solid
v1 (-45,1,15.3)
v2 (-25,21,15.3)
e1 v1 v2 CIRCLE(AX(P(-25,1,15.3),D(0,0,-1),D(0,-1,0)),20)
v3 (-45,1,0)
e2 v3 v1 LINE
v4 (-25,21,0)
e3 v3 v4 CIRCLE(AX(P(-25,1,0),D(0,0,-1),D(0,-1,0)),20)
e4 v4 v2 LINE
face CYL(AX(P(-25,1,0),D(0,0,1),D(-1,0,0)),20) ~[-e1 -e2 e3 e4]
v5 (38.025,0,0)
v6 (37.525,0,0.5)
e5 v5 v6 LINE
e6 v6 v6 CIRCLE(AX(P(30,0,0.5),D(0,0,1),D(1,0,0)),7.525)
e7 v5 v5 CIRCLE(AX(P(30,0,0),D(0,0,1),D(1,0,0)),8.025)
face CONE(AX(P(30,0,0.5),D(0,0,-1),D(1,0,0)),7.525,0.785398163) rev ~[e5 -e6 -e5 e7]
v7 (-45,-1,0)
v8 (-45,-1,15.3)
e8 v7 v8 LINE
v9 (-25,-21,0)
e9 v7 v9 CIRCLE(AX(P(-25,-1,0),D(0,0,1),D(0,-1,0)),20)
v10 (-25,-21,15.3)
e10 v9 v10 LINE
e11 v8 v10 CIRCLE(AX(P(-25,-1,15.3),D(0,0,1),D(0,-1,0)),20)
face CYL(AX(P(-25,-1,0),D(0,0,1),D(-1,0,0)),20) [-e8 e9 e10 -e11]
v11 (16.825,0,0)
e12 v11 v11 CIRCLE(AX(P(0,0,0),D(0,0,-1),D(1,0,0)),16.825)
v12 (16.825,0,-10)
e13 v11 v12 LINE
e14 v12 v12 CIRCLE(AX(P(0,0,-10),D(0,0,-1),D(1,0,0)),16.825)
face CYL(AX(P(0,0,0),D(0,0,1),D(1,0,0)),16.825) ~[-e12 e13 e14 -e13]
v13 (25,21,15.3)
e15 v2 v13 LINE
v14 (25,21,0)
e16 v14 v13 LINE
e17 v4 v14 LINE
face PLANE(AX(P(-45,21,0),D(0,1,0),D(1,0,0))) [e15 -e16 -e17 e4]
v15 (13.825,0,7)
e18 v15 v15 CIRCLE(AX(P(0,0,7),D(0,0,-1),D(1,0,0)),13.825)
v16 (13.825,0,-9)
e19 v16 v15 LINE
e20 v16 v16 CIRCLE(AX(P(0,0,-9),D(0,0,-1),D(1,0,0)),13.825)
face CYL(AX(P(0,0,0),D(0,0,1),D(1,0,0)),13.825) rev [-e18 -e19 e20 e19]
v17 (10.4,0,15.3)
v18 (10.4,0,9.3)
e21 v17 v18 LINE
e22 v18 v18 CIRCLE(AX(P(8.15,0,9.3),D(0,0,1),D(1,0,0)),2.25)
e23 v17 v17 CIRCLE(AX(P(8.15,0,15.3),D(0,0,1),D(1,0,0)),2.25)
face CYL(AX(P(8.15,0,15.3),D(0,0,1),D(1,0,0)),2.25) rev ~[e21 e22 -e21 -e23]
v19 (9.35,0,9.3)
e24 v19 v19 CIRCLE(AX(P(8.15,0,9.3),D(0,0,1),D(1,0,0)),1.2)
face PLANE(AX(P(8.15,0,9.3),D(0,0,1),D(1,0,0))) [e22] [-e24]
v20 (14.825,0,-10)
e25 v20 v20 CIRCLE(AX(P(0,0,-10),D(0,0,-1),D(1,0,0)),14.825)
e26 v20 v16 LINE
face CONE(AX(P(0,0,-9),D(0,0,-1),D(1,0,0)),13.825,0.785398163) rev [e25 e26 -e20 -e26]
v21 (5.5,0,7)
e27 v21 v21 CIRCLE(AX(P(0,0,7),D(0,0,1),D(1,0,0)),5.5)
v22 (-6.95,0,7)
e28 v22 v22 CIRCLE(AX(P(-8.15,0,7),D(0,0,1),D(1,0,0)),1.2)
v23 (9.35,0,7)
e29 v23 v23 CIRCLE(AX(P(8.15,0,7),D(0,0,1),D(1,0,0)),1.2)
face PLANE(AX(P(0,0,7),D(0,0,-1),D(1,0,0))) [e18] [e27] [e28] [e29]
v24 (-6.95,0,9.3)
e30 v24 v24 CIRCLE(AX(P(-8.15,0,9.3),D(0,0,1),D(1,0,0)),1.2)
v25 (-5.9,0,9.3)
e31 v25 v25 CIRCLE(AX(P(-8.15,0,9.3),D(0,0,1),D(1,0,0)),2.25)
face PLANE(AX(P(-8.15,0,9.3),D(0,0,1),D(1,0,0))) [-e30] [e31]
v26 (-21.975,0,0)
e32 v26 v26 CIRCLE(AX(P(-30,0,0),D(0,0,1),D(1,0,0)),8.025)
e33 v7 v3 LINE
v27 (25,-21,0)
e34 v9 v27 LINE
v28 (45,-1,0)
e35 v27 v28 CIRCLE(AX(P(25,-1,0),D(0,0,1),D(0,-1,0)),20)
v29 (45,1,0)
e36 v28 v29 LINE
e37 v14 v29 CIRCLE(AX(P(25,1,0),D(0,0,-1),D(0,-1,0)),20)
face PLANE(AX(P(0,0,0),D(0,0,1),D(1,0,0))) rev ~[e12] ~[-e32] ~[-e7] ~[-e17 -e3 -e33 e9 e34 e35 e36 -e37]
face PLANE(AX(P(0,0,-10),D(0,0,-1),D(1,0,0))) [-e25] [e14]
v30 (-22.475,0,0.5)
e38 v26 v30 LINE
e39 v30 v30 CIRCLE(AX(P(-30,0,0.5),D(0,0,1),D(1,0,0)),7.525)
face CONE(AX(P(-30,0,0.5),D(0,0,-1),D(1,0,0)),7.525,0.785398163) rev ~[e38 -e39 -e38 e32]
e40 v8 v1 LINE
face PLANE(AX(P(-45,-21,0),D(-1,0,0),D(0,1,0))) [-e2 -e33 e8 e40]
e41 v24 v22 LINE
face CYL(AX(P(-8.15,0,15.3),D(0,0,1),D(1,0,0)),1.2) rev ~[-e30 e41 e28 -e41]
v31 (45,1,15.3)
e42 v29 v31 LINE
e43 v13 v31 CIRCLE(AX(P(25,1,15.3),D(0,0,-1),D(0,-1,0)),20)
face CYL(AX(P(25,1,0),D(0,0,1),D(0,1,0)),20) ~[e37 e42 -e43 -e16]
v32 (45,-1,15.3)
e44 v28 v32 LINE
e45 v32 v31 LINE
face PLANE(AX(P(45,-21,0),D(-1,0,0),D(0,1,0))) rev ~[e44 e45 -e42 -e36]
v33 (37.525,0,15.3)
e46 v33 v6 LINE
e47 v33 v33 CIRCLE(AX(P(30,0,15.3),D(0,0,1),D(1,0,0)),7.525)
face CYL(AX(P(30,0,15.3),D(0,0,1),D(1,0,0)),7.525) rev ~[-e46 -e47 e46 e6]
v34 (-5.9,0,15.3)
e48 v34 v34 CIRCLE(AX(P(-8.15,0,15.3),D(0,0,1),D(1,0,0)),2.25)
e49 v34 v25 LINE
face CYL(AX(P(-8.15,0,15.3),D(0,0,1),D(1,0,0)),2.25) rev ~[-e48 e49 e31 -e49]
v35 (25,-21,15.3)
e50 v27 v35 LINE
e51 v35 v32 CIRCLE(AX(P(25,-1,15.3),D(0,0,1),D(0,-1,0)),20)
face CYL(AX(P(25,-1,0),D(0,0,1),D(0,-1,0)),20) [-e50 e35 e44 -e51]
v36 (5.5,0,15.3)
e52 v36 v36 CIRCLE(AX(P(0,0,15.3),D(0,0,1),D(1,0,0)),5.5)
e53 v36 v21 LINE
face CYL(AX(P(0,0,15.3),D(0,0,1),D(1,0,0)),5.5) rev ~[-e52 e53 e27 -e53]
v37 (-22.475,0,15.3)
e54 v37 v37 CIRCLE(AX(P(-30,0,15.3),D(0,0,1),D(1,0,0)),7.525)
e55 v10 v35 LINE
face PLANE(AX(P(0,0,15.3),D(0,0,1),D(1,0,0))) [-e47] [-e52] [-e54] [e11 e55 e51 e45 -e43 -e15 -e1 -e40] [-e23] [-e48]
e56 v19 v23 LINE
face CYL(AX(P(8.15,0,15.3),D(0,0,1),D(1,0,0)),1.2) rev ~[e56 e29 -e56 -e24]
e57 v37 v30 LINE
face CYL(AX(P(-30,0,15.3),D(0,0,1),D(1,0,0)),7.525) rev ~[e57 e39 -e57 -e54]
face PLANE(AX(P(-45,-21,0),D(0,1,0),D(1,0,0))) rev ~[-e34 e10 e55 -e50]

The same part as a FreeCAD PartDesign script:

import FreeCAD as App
import Part
import Sketcher
from FreeCAD import Vector


def edges_at(feature, points):
    """Names of the edges that pass closest to the given points."""
    edges = feature.Shape.Edges
    near = lambda p: min(range(len(edges)), key=lambda i: edges[i].distToShape(Part.Vertex(*p))[0])
    return sorted({f"Edge{near(p) + 1}" for p in points})

doc = App.newDocument("Part")
body = doc.addObject("PartDesign::Body", "Body")

# Sketch on XY plane
sketch1 = doc.addObject("Sketcher::SketchObject", "Sketch")
body.addObject(sketch1)
sketch1.AttachmentSupport = (doc.XY_Plane, [""])
sketch1.MapMode = "FlatFace"
sketch1.addGeometry([
    Part.LineSegment(Vector(-45, 21, 0), Vector(-45, -21, 0)),
    Part.LineSegment(Vector(-45, -21, 0), Vector(45, -21, 0)),
    Part.LineSegment(Vector(45, -21, 0), Vector(45, 21, 0)),
    Part.LineSegment(Vector(45, 21, 0), Vector(-45, 21, 0)),
], False)
sketch1.addConstraint([
    Sketcher.Constraint("Coincident", 0, 2, 1, 1),
    Sketcher.Constraint("Coincident", 1, 2, 2, 1),
    Sketcher.Constraint("Coincident", 2, 2, 3, 1),
    Sketcher.Constraint("Coincident", 3, 2, 0, 1),
    Sketcher.Constraint("Vertical", 0),
    Sketcher.Constraint("Horizontal", 1),
    Sketcher.Constraint("Vertical", 2),
    Sketcher.Constraint("Horizontal", 3),
    Sketcher.Constraint("Symmetric", 0, 2, 2, 2, -1, 1),
    Sketcher.Constraint("DistanceX", 1, 1, 1, 2, 90.0),
    Sketcher.Constraint("DistanceY", 0, 2, 0, 1, 42.0),
])
pad1 = doc.addObject("PartDesign::Pad", "Pad")
body.addObject(pad1)
pad1.Profile = sketch1
pad1.Length = 15.3
doc.recompute()

fillet = doc.addObject("PartDesign::Fillet", "Fillet")
body.addObject(fillet)
fillet.Base = (pad1, edges_at(pad1, [(-45, -21, 7.65), (-45, 21, 7.65)]))
fillet.Radius = 20
doc.recompute()

fillet2 = doc.addObject("PartDesign::Fillet", "Fillet001")
body.addObject(fillet2)
fillet2.Base = (fillet, edges_at(fillet, [(45, 21, 7.65), (45, -21, 7.65)]))
fillet2.Radius = 20

# Sketch on XY plane
sketch2 = doc.addObject("Sketcher::SketchObject", "Sketch001")
body.addObject(sketch2)
sketch2.AttachmentSupport = (doc.XY_Plane, [""])
sketch2.MapMode = "FlatFace"
sketch2.addGeometry(Part.Circle(Vector(0, 0, 0), Vector(0, 0, 1), 13.825), False)
sketch2.addConstraint([
    Sketcher.Constraint("Coincident", 0, 3, -1, 1),
    Sketcher.Constraint("Diameter", 0, 27.65),
])
pocket1 = doc.addObject("PartDesign::Pocket", "Pocket")
body.addObject(pocket1)
pocket1.Profile = sketch2
pocket1.Length = 7
pocket1.Reversed = True

# Sketch on XY plane
sketch3 = doc.addObject("Sketcher::SketchObject", "Sketch002")
body.addObject(sketch3)
sketch3.AttachmentSupport = (doc.XY_Plane, [""])
sketch3.MapMode = "FlatFace"
sketch3.AttachmentOffset = App.Placement(Vector(0, 0, 15.3), App.Rotation())
sketch3.addGeometry(Part.Circle(Vector(0, 0, 0), Vector(0, 0, 1), 5.5), False)
sketch3.addConstraint([
    Sketcher.Constraint("Coincident", 0, 3, -1, 1),
    Sketcher.Constraint("Diameter", 0, 11.0),
])
pocket2 = doc.addObject("PartDesign::Pocket", "Pocket001")
body.addObject(pocket2)
pocket2.Profile = sketch3
pocket2.Length = 10

# Sketch on XY plane
sketch4 = doc.addObject("Sketcher::SketchObject", "Sketch003")
body.addObject(sketch4)
sketch4.AttachmentSupport = (doc.XY_Plane, [""])
sketch4.MapMode = "FlatFace"
sketch4.AttachmentOffset = App.Placement(Vector(0, 0, 15.3), App.Rotation())
sketch4.addGeometry([
    Part.Circle(Vector(-30, 0, 0), Vector(0, 0, 1), 7.525),
    Part.Circle(Vector(30, 0, 0), Vector(0, 0, 1), 7.525),
    Part.Circle(Vector(-8.15, 0, 0), Vector(0, 0, 1), 1.2),
    Part.Circle(Vector(8.15, 0, 0), Vector(0, 0, 1), 1.2),
], False)
sketch4.addConstraint([
    Sketcher.Constraint("Equal", 0, 1),
    Sketcher.Constraint("Equal", 2, 3),
    Sketcher.Constraint("Symmetric", 0, 3, 1, 3, -1, 1),
    Sketcher.Constraint("Symmetric", 2, 3, 3, 3, -1, 1),
    Sketcher.Constraint("PointOnObject", 0, 3, -1),
    Sketcher.Constraint("PointOnObject", 2, 3, -1),
    Sketcher.Constraint("Diameter", 2, 2.4),
    Sketcher.Constraint("Diameter", 0, 15.05),
    Sketcher.Constraint("DistanceX", 0, 3, -1, 1, 30.0),
    Sketcher.Constraint("DistanceX", 2, 3, 3, 3, 16.3),
])
pocket3 = doc.addObject("PartDesign::Pocket", "Pocket002")
body.addObject(pocket3)
pocket3.Profile = sketch4
pocket3.Length = 18

# Sketch on XY plane
sketch5 = doc.addObject("Sketcher::SketchObject", "Sketch004")
body.addObject(sketch5)
sketch5.AttachmentSupport = (doc.XY_Plane, [""])
sketch5.MapMode = "FlatFace"
sketch5.addGeometry([
    Part.Circle(Vector(0, 0, 0), Vector(0, 0, 1), 16.825),
    Part.Circle(Vector(0, 0, 0), Vector(0, 0, 1), 13.825),
], False)
sketch5.addConstraint([
    Sketcher.Constraint("Coincident", 0, 3, -1, 1),
    Sketcher.Constraint("Coincident", 1, 3, -1, 1),
    Sketcher.Constraint("Diameter", 0, 33.65),
    Sketcher.Constraint("Diameter", 1, 27.65),
])
pad2 = doc.addObject("PartDesign::Pad", "Pad001")
body.addObject(pad2)
pad2.Profile = sketch5
pad2.Length = 10
pad2.Reversed = True
doc.recompute()

chamfer = doc.addObject("PartDesign::Chamfer", "Chamfer")
body.addObject(chamfer)
chamfer.Base = (pad2, edges_at(pad2, [(-13.825, 0, -10)]))
chamfer.Size = 1
doc.recompute()

chamfer2 = doc.addObject("PartDesign::Chamfer", "Chamfer001")
body.addObject(chamfer2)
chamfer2.Base = (chamfer, edges_at(chamfer, [(-37.525, 0, 0), (22.475, 0, 0)]))
chamfer2.Size = 0.5

# Sketch on XY plane
sketch6 = doc.addObject("Sketcher::SketchObject", "Sketch005")
body.addObject(sketch6)
sketch6.AttachmentSupport = (doc.XY_Plane, [""])
sketch6.MapMode = "FlatFace"
sketch6.AttachmentOffset = App.Placement(Vector(0, 0, 15.3), App.Rotation())
sketch6.addGeometry([
    Part.Circle(Vector(-8.15, 0, 0), Vector(0, 0, 1), 2.25),
    Part.Circle(Vector(8.15, 0, 0), Vector(0, 0, 1), 2.25),
], False)
sketch6.addConstraint([
    Sketcher.Constraint("Equal", 0, 1),
    Sketcher.Constraint("Symmetric", 0, 3, 1, 3, -1, 1),
    Sketcher.Constraint("PointOnObject", 0, 3, -1),
    Sketcher.Constraint("Diameter", 0, 4.5),
    Sketcher.Constraint("DistanceX", 0, 3, 1, 3, 16.3),
])
pocket4 = doc.addObject("PartDesign::Pocket", "Pocket003")
body.addObject(pocket4)
pocket4.Profile = sketch6
pocket4.Length = 6

doc.recompute()
